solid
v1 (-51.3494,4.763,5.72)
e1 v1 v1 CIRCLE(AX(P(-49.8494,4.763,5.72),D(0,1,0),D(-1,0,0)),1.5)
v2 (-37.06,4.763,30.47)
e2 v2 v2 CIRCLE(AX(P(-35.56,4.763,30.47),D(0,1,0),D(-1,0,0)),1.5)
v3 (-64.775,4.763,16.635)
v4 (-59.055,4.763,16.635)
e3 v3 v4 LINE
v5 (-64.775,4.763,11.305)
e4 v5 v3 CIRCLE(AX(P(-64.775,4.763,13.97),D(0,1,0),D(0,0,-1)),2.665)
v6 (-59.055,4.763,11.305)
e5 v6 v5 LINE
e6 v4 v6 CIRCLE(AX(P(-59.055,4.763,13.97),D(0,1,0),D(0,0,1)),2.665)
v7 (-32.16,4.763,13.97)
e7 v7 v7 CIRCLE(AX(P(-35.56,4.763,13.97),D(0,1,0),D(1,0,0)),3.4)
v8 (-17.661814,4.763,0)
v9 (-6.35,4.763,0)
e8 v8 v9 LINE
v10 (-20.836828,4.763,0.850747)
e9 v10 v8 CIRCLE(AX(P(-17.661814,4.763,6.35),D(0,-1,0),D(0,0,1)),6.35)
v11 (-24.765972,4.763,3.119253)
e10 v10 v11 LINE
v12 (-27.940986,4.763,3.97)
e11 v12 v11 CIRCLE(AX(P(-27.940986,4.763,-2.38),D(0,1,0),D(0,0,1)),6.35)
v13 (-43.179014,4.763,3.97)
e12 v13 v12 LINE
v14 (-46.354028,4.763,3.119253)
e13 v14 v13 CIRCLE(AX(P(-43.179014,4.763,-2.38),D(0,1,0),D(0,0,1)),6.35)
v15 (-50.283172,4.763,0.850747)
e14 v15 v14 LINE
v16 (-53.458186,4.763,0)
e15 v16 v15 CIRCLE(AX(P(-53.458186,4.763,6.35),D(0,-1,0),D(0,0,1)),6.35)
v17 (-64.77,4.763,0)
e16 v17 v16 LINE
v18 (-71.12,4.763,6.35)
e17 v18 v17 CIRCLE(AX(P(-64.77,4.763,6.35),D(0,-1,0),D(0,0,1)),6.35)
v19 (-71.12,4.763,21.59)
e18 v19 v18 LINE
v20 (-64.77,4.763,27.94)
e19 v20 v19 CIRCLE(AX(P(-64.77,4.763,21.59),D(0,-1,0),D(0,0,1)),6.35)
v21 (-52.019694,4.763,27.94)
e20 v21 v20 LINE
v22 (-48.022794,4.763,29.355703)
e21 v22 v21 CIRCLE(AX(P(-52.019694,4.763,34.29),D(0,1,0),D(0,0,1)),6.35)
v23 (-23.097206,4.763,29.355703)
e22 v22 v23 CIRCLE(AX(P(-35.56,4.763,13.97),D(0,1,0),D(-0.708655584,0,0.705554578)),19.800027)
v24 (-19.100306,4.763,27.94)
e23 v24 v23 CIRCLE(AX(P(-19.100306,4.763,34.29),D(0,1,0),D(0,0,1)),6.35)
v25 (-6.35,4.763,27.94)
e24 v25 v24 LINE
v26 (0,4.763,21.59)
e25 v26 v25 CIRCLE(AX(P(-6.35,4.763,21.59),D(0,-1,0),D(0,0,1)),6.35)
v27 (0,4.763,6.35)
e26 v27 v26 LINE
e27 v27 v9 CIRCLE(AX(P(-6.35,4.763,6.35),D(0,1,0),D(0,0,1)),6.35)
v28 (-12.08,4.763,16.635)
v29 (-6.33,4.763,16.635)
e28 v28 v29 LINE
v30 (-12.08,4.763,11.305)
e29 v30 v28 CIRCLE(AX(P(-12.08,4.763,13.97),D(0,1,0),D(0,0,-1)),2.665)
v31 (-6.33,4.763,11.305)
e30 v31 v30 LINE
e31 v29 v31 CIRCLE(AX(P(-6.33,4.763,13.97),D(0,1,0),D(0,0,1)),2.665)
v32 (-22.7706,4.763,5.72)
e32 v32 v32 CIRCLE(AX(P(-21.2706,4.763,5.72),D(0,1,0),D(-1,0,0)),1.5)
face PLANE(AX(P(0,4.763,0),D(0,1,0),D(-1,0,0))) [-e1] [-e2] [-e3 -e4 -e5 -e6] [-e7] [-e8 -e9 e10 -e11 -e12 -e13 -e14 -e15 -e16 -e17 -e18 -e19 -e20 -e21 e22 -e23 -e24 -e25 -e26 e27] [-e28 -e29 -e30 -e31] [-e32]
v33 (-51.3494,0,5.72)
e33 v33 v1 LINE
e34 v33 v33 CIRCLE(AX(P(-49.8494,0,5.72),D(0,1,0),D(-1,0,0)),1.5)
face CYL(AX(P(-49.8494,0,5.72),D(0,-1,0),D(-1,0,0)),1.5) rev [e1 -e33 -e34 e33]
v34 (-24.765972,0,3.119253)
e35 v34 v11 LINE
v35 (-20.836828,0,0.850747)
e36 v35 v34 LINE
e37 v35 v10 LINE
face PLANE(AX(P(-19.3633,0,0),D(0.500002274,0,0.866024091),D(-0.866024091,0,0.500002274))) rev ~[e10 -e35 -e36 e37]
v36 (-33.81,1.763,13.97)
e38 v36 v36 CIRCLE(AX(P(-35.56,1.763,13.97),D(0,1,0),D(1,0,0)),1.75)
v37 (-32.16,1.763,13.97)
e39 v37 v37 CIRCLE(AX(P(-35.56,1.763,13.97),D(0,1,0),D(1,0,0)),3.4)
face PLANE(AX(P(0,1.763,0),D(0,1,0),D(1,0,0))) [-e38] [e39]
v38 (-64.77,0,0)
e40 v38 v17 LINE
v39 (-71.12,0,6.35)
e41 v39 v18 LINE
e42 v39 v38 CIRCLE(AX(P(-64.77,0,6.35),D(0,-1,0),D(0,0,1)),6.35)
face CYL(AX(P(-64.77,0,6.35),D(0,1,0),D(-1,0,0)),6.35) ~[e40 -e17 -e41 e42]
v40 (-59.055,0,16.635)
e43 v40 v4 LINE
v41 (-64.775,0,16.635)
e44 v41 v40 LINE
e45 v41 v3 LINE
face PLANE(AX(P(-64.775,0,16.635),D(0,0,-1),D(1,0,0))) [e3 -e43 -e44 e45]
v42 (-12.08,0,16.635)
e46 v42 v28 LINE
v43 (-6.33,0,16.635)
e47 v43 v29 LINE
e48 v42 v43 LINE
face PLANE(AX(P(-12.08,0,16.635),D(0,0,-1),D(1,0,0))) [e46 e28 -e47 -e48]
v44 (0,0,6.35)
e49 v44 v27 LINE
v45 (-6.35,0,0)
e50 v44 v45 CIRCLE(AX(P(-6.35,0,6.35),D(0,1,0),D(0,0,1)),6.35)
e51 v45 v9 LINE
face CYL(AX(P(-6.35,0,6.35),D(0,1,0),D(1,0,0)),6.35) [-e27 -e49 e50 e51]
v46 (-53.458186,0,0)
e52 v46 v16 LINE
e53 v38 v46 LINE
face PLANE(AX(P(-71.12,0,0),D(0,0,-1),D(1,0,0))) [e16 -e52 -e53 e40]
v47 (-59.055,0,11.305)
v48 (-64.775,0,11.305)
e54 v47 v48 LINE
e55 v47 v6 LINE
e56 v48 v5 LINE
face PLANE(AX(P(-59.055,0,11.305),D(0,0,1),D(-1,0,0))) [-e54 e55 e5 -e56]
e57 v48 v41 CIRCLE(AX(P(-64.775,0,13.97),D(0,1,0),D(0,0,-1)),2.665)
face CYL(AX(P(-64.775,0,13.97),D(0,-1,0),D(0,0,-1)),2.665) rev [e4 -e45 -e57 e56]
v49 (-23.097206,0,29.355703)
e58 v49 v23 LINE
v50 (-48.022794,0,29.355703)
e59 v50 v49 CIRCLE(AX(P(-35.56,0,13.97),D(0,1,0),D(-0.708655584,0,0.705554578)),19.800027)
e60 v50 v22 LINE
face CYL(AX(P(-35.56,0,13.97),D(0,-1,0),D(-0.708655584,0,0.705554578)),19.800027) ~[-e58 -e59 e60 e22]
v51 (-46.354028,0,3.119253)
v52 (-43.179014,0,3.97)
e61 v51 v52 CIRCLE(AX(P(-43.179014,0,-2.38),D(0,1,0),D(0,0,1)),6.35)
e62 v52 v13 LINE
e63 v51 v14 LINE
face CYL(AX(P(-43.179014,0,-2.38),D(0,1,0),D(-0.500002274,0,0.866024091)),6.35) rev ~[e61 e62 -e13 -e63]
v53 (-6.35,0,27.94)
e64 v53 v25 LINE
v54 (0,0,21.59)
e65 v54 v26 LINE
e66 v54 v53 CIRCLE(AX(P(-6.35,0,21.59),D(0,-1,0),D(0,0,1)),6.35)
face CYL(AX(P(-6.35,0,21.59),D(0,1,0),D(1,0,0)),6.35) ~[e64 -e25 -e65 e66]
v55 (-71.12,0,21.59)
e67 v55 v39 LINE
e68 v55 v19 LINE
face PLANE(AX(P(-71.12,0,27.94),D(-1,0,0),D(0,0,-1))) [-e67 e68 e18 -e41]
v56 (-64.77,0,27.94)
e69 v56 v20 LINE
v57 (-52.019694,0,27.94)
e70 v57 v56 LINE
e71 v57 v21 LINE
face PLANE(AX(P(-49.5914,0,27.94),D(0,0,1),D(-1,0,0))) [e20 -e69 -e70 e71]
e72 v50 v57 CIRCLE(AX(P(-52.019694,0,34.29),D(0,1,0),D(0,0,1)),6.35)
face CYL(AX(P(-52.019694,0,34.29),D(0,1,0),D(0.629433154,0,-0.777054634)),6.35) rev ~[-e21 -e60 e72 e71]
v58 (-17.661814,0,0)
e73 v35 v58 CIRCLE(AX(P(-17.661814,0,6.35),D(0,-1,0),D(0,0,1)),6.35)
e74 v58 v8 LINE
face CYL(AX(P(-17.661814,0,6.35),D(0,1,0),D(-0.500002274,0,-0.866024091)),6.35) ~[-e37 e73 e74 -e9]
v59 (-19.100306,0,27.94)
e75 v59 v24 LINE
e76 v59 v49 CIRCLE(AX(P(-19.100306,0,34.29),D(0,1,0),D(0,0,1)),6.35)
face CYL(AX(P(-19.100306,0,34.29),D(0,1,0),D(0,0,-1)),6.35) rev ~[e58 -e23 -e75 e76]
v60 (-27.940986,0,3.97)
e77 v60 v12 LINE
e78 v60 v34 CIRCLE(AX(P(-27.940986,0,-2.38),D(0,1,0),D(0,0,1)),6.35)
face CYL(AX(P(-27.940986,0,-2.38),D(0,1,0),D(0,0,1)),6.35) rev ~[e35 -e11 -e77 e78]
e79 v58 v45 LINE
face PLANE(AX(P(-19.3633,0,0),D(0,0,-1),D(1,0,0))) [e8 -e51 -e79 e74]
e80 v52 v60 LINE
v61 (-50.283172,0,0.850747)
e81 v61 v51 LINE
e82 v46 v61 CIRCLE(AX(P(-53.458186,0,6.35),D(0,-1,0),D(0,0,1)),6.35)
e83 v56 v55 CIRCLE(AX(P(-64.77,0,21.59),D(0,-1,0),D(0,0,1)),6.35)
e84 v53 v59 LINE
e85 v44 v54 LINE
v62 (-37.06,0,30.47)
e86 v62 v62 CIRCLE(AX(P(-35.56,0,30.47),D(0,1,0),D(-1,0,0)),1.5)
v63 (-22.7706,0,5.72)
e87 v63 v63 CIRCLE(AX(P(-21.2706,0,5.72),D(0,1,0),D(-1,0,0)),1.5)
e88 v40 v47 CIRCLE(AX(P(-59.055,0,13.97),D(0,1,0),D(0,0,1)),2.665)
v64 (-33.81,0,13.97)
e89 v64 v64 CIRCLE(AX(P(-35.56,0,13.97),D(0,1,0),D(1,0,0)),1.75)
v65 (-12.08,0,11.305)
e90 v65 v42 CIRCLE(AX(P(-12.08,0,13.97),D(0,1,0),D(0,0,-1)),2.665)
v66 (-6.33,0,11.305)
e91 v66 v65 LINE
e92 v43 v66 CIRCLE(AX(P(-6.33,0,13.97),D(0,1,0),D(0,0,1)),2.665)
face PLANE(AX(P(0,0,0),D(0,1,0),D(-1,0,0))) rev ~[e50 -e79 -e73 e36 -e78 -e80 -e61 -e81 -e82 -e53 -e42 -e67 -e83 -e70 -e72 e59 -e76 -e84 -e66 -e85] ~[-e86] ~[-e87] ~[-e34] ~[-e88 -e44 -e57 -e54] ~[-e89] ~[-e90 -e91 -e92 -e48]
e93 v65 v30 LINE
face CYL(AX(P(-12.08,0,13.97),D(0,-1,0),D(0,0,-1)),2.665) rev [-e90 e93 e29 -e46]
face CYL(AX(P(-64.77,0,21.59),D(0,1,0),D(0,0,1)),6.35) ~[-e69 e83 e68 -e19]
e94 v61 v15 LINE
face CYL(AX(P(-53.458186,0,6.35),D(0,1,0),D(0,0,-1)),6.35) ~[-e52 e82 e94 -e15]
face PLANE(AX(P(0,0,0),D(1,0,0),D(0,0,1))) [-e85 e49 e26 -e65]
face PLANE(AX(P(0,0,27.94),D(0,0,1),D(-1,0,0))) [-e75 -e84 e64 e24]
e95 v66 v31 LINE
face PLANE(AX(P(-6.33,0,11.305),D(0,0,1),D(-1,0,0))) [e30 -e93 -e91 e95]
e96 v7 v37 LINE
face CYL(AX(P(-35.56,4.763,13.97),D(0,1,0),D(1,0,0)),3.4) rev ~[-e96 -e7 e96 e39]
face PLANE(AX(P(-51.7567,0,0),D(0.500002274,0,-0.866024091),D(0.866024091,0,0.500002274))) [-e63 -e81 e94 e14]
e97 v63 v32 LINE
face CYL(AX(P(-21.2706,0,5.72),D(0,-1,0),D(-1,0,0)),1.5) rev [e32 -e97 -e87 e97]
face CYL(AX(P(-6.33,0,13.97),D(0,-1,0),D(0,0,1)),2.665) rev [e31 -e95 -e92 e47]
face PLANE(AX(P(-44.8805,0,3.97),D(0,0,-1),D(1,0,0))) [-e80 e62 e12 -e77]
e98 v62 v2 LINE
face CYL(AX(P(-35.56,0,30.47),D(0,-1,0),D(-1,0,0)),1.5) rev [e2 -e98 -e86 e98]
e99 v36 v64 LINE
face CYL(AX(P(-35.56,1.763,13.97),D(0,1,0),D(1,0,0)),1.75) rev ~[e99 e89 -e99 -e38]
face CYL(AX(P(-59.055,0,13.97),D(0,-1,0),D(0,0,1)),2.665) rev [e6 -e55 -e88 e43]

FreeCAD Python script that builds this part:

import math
import FreeCAD as App
import Part
import Sketcher
Q = App.Units.Quantity


def edges_at(feature, points):
    """Names of the edges that pass closest to the given points."""
    edges = feature.Shape.Edges
    near = lambda p: min(range(len(edges)), key=lambda i: edges[i].distToShape(Part.Vertex(*p))[0])
    return sorted({f"Edge{near(p) + 1}" for p in points})

doc = App.newDocument("Part")
body = doc.addObject("PartDesign::Body", "Body")

# Sketch on XZ plane
sketch1 = body.newObject("Sketcher::SketchObject", "Sketch")
sketch1.AttachmentSupport = (doc.getObject("XZ_Plane"), [""])
sketch1.MapMode = "FlatFace"
sketch1.addGeometry([
    Part.LineSegment(App.Vector(0, 27.9, 0), App.Vector(0, 0, 0)),  # 0
    Part.LineSegment(App.Vector(0, 0, 0), App.Vector(-19.4, 0, 0)),  # 1
    Part.LineSegment(App.Vector(-19.4, 0, 0), App.Vector(-26.2, 4, 0)),  # 2
    Part.LineSegment(App.Vector(-26.2, 4, 0), App.Vector(-44.9, 4, 0)),  # 3
    Part.LineSegment(App.Vector(-44.9, 4, 0), App.Vector(-51.8, 0, 0)),  # 4
    Part.LineSegment(App.Vector(-51.8, 0, 0), App.Vector(-71.1, 0, 0)),  # 5
    Part.LineSegment(App.Vector(-71.1, 0, 0), App.Vector(-71.1, 27.9, 0)),  # 6
    Part.LineSegment(App.Vector(-71.1, 27.9, 0), App.Vector(-49.6, 27.9, 0)),  # 7
    Part.ArcOfCircle(Part.Circle(App.Vector(-35.6, 14, 0), App.Vector(0, 0, 1), 19.8), math.radians(45), math.radians(135)),  # 8
    Part.LineSegment(App.Vector(-21.5, 27.9, 0), App.Vector(0, 27.9, 0)),  # 9
    Part.Circle(App.Vector(-21.3, 5.7, 0), App.Vector(0, 0, 1), 1.5),  # 10
    Part.LineSegment(App.Vector(-12.1, 11.3, 0), App.Vector(-6.3, 11.3, 0)),  # 11
    Part.ArcOfCircle(Part.Circle(App.Vector(-6.3, 14, 0), App.Vector(0, 0, 1), 2.7), math.radians(-90), math.radians(90)),  # 12
    Part.LineSegment(App.Vector(-6.3, 16.6, 0), App.Vector(-12.1, 16.6, 0)),  # 13
    Part.ArcOfCircle(Part.Circle(App.Vector(-12.1, 14, 0), App.Vector(0, 0, 1), 2.7), math.radians(90), math.radians(270)),  # 14
    Part.Circle(App.Vector(-49.8, 5.7, 0), App.Vector(0, 0, 1), 1.5),  # 15
    Part.LineSegment(App.Vector(-64.8, 11.3, 0), App.Vector(-59.1, 11.3, 0)),  # 16
    Part.ArcOfCircle(Part.Circle(App.Vector(-59.1, 14, 0), App.Vector(0, 0, 1), 2.7), math.radians(-90), math.radians(90)),  # 17
    Part.LineSegment(App.Vector(-59.1, 16.6, 0), App.Vector(-64.8, 16.6, 0)),  # 18
    Part.ArcOfCircle(Part.Circle(App.Vector(-64.8, 14, 0), App.Vector(0, 0, 1), 2.7), math.radians(90), math.radians(270)),  # 19
    Part.Circle(App.Vector(-35.6, 30.5, 0), App.Vector(0, 0, 1), 1.5),  # 20
], False)
sketch1.addConstraint([
    Sketcher.Constraint("Coincident", 0, 2, 1, 1),
    Sketcher.Constraint("Coincident", 1, 2, 2, 1),
    Sketcher.Constraint("Coincident", 2, 2, 3, 1),
    Sketcher.Constraint("Coincident", 3, 2, 4, 1),
    Sketcher.Constraint("Coincident", 4, 2, 5, 1),
    Sketcher.Constraint("Coincident", 5, 2, 6, 1),
    Sketcher.Constraint("Coincident", 6, 2, 7, 1),
    Sketcher.Constraint("Coincident", 7, 2, 8, 2),
    Sketcher.Constraint("Coincident", 8, 1, 9, 1),
    Sketcher.Constraint("Coincident", 9, 2, 0, 1),
    Sketcher.Constraint("Tangent", 11, 2, 12, 1),
    Sketcher.Constraint("Tangent", 12, 2, 13, 1),
    Sketcher.Constraint("Tangent", 13, 2, 14, 1),
    Sketcher.Constraint("Tangent", 14, 2, 11, 1),
    Sketcher.Constraint("Tangent", 16, 2, 17, 1),
    Sketcher.Constraint("Tangent", 17, 2, 18, 1),
    Sketcher.Constraint("Tangent", 18, 2, 19, 1),
    Sketcher.Constraint("Tangent", 19, 2, 16, 1),
    Sketcher.Constraint("Vertical", 0),
    Sketcher.Constraint("Horizontal", 1),
    Sketcher.Constraint("Horizontal", 3),
    Sketcher.Constraint("Horizontal", 5),
    Sketcher.Constraint("Vertical", 6),
    Sketcher.Constraint("Horizontal", 7),
    Sketcher.Constraint("Horizontal", 9),
    Sketcher.Constraint("Horizontal", 11),
    Sketcher.Constraint("Horizontal", 13),
    Sketcher.Constraint("Horizontal", 16),
    Sketcher.Constraint("Horizontal", 18),
    Sketcher.Constraint("Coincident", 0, 2, -1, 1),
    Sketcher.Constraint("Equal", 10, 15),
    Sketcher.Constraint("Equal", 14, 17),
    Sketcher.Constraint("Equal", 15, 20),
    Sketcher.Constraint("PointOnObject", 4, 2, -1),
    Sketcher.Constraint("Horizontal", 8, 3, 12, 3),
    Sketcher.Constraint("Horizontal", 10, 3, 15, 3),
    Sketcher.Constraint("Horizontal", 14, 3, 17, 3),
    Sketcher.Constraint("Horizontal", 7, 2, 8, 1),
    Sketcher.Constraint("Vertical", 8, 3, 20, 3),
    Sketcher.Constraint("Equal", 1, 5),
    Sketcher.Constraint("Equal", 7, 9),
    Sketcher.Constraint("Equal", 2, 4),
    Sketcher.Constraint("Diameter", 10, 3.0),
    Sketcher.Constraint("Radius", 8, 19.8),
    Sketcher.Constraint("Radius", 12, 2.665),
    Sketcher.Constraint("DistanceY", 2, 2, 8, 3, 10.0),
    Sketcher.Constraint("DistanceY", 0, 2, 0, 1, 27.94),
    Sketcher.Constraint("DistanceX", 8, 3, -1, 1, 35.56),
    Sketcher.Constraint("DistanceY", -1, 1, 8, 3, 13.97),
    Sketcher.Constraint("Angle", 2, Q("149.9998 deg")),
    Sketcher.Constraint("DistanceX", 11, 1, 11, 2, 5.75),
    Sketcher.Constraint("DistanceX", 16, 1, 16, 2, 5.72),
    Sketcher.Constraint("DistanceY", 8, 3, 20, 3, 16.5),
    Sketcher.Constraint("DistanceX", 3, 2, 3, 1, 18.641),
    Sketcher.Constraint("DistanceY", -1, 1, 10, 3, 5.72),
    Sketcher.Constraint("DistanceX", 12, 3, -1, 1, 6.33),
    Sketcher.Constraint("DistanceX", 17, 3, -1, 1, 59.055),
    Sketcher.Constraint("DistanceX", 2, 2, 10, 3, 4.969),
    Sketcher.Constraint("DistanceX", 15, 3, 3, 2, 4.969),
])
pad1 = body.newObject("PartDesign::Pad", "Pad")
pad1.Profile = sketch1
pad1.Length = 4.763
pad1.Reversed = True
doc.recompute()

fillet = body.newObject("PartDesign::Fillet", "Fillet")
fillet.Base = (pad1, edges_at(pad1, [
    (0, 2.381, 0),
    (0, 2.381, 27.94),
    (-71.12, 2.381, 0),
    (-71.12, 2.381, 27.94),
    (-21.529, 2.381, 27.94),
    (-49.591, 2.381, 27.94),
    (-26.239, 2.381, 3.97),
    (-19.363, 2.381, 0),
    (-44.88, 2.381, 3.97),
    (-51.757, 2.381, 0),
]))
fillet.Radius = 6.35

# Sketch on XZ plane
sketch2 = body.newObject("Sketcher::SketchObject", "Sketch001")
sketch2.AttachmentSupport = (doc.getObject("XZ_Plane"), [""])
sketch2.MapMode = "FlatFace"
sketch2.AttachmentOffset = App.Placement(App.Vector(0, 0, -4.763), App.Rotation())
sketch2.addGeometry(Part.Circle(App.Vector(-35.6, 14, 0), App.Vector(0, 0, 1), 3.4), False)
sketch2.addConstraint([
    Sketcher.Constraint("Diameter", 0, 6.8),
    Sketcher.Constraint("DistanceX", 0, 3, -1, 1, 35.56),
    Sketcher.Constraint("DistanceY", -1, 1, 0, 3, 13.97),
])
pocket1 = body.newObject("PartDesign::Pocket", "Pocket")
pocket1.Profile = sketch2
pocket1.Length = 3
pocket1.Reversed = True

# Sketch on XZ plane
sketch3 = body.newObject("Sketcher::SketchObject", "Sketch002")
sketch3.AttachmentSupport = (doc.getObject("XZ_Plane"), [""])
sketch3.MapMode = "FlatFace"
sketch3.AttachmentOffset = App.Placement(App.Vector(0, 0, -1.763), App.Rotation())
sketch3.addGeometry(Part.Circle(App.Vector(-35.6, 14, 0), App.Vector(0, 0, 1), 1.8), False)
sketch3.addConstraint([
    Sketcher.Constraint("Diameter", 0, 3.5),
    Sketcher.Constraint("DistanceX", 0, 3, -1, 1, 35.56),
    Sketcher.Constraint("DistanceY", -1, 1, 0, 3, 13.97),
])
pocket2 = body.newObject("PartDesign::Pocket", "Pocket001")
pocket2.Profile = sketch3
pocket2.Length = 6.75
pocket2.Reversed = True

doc.recompute()
